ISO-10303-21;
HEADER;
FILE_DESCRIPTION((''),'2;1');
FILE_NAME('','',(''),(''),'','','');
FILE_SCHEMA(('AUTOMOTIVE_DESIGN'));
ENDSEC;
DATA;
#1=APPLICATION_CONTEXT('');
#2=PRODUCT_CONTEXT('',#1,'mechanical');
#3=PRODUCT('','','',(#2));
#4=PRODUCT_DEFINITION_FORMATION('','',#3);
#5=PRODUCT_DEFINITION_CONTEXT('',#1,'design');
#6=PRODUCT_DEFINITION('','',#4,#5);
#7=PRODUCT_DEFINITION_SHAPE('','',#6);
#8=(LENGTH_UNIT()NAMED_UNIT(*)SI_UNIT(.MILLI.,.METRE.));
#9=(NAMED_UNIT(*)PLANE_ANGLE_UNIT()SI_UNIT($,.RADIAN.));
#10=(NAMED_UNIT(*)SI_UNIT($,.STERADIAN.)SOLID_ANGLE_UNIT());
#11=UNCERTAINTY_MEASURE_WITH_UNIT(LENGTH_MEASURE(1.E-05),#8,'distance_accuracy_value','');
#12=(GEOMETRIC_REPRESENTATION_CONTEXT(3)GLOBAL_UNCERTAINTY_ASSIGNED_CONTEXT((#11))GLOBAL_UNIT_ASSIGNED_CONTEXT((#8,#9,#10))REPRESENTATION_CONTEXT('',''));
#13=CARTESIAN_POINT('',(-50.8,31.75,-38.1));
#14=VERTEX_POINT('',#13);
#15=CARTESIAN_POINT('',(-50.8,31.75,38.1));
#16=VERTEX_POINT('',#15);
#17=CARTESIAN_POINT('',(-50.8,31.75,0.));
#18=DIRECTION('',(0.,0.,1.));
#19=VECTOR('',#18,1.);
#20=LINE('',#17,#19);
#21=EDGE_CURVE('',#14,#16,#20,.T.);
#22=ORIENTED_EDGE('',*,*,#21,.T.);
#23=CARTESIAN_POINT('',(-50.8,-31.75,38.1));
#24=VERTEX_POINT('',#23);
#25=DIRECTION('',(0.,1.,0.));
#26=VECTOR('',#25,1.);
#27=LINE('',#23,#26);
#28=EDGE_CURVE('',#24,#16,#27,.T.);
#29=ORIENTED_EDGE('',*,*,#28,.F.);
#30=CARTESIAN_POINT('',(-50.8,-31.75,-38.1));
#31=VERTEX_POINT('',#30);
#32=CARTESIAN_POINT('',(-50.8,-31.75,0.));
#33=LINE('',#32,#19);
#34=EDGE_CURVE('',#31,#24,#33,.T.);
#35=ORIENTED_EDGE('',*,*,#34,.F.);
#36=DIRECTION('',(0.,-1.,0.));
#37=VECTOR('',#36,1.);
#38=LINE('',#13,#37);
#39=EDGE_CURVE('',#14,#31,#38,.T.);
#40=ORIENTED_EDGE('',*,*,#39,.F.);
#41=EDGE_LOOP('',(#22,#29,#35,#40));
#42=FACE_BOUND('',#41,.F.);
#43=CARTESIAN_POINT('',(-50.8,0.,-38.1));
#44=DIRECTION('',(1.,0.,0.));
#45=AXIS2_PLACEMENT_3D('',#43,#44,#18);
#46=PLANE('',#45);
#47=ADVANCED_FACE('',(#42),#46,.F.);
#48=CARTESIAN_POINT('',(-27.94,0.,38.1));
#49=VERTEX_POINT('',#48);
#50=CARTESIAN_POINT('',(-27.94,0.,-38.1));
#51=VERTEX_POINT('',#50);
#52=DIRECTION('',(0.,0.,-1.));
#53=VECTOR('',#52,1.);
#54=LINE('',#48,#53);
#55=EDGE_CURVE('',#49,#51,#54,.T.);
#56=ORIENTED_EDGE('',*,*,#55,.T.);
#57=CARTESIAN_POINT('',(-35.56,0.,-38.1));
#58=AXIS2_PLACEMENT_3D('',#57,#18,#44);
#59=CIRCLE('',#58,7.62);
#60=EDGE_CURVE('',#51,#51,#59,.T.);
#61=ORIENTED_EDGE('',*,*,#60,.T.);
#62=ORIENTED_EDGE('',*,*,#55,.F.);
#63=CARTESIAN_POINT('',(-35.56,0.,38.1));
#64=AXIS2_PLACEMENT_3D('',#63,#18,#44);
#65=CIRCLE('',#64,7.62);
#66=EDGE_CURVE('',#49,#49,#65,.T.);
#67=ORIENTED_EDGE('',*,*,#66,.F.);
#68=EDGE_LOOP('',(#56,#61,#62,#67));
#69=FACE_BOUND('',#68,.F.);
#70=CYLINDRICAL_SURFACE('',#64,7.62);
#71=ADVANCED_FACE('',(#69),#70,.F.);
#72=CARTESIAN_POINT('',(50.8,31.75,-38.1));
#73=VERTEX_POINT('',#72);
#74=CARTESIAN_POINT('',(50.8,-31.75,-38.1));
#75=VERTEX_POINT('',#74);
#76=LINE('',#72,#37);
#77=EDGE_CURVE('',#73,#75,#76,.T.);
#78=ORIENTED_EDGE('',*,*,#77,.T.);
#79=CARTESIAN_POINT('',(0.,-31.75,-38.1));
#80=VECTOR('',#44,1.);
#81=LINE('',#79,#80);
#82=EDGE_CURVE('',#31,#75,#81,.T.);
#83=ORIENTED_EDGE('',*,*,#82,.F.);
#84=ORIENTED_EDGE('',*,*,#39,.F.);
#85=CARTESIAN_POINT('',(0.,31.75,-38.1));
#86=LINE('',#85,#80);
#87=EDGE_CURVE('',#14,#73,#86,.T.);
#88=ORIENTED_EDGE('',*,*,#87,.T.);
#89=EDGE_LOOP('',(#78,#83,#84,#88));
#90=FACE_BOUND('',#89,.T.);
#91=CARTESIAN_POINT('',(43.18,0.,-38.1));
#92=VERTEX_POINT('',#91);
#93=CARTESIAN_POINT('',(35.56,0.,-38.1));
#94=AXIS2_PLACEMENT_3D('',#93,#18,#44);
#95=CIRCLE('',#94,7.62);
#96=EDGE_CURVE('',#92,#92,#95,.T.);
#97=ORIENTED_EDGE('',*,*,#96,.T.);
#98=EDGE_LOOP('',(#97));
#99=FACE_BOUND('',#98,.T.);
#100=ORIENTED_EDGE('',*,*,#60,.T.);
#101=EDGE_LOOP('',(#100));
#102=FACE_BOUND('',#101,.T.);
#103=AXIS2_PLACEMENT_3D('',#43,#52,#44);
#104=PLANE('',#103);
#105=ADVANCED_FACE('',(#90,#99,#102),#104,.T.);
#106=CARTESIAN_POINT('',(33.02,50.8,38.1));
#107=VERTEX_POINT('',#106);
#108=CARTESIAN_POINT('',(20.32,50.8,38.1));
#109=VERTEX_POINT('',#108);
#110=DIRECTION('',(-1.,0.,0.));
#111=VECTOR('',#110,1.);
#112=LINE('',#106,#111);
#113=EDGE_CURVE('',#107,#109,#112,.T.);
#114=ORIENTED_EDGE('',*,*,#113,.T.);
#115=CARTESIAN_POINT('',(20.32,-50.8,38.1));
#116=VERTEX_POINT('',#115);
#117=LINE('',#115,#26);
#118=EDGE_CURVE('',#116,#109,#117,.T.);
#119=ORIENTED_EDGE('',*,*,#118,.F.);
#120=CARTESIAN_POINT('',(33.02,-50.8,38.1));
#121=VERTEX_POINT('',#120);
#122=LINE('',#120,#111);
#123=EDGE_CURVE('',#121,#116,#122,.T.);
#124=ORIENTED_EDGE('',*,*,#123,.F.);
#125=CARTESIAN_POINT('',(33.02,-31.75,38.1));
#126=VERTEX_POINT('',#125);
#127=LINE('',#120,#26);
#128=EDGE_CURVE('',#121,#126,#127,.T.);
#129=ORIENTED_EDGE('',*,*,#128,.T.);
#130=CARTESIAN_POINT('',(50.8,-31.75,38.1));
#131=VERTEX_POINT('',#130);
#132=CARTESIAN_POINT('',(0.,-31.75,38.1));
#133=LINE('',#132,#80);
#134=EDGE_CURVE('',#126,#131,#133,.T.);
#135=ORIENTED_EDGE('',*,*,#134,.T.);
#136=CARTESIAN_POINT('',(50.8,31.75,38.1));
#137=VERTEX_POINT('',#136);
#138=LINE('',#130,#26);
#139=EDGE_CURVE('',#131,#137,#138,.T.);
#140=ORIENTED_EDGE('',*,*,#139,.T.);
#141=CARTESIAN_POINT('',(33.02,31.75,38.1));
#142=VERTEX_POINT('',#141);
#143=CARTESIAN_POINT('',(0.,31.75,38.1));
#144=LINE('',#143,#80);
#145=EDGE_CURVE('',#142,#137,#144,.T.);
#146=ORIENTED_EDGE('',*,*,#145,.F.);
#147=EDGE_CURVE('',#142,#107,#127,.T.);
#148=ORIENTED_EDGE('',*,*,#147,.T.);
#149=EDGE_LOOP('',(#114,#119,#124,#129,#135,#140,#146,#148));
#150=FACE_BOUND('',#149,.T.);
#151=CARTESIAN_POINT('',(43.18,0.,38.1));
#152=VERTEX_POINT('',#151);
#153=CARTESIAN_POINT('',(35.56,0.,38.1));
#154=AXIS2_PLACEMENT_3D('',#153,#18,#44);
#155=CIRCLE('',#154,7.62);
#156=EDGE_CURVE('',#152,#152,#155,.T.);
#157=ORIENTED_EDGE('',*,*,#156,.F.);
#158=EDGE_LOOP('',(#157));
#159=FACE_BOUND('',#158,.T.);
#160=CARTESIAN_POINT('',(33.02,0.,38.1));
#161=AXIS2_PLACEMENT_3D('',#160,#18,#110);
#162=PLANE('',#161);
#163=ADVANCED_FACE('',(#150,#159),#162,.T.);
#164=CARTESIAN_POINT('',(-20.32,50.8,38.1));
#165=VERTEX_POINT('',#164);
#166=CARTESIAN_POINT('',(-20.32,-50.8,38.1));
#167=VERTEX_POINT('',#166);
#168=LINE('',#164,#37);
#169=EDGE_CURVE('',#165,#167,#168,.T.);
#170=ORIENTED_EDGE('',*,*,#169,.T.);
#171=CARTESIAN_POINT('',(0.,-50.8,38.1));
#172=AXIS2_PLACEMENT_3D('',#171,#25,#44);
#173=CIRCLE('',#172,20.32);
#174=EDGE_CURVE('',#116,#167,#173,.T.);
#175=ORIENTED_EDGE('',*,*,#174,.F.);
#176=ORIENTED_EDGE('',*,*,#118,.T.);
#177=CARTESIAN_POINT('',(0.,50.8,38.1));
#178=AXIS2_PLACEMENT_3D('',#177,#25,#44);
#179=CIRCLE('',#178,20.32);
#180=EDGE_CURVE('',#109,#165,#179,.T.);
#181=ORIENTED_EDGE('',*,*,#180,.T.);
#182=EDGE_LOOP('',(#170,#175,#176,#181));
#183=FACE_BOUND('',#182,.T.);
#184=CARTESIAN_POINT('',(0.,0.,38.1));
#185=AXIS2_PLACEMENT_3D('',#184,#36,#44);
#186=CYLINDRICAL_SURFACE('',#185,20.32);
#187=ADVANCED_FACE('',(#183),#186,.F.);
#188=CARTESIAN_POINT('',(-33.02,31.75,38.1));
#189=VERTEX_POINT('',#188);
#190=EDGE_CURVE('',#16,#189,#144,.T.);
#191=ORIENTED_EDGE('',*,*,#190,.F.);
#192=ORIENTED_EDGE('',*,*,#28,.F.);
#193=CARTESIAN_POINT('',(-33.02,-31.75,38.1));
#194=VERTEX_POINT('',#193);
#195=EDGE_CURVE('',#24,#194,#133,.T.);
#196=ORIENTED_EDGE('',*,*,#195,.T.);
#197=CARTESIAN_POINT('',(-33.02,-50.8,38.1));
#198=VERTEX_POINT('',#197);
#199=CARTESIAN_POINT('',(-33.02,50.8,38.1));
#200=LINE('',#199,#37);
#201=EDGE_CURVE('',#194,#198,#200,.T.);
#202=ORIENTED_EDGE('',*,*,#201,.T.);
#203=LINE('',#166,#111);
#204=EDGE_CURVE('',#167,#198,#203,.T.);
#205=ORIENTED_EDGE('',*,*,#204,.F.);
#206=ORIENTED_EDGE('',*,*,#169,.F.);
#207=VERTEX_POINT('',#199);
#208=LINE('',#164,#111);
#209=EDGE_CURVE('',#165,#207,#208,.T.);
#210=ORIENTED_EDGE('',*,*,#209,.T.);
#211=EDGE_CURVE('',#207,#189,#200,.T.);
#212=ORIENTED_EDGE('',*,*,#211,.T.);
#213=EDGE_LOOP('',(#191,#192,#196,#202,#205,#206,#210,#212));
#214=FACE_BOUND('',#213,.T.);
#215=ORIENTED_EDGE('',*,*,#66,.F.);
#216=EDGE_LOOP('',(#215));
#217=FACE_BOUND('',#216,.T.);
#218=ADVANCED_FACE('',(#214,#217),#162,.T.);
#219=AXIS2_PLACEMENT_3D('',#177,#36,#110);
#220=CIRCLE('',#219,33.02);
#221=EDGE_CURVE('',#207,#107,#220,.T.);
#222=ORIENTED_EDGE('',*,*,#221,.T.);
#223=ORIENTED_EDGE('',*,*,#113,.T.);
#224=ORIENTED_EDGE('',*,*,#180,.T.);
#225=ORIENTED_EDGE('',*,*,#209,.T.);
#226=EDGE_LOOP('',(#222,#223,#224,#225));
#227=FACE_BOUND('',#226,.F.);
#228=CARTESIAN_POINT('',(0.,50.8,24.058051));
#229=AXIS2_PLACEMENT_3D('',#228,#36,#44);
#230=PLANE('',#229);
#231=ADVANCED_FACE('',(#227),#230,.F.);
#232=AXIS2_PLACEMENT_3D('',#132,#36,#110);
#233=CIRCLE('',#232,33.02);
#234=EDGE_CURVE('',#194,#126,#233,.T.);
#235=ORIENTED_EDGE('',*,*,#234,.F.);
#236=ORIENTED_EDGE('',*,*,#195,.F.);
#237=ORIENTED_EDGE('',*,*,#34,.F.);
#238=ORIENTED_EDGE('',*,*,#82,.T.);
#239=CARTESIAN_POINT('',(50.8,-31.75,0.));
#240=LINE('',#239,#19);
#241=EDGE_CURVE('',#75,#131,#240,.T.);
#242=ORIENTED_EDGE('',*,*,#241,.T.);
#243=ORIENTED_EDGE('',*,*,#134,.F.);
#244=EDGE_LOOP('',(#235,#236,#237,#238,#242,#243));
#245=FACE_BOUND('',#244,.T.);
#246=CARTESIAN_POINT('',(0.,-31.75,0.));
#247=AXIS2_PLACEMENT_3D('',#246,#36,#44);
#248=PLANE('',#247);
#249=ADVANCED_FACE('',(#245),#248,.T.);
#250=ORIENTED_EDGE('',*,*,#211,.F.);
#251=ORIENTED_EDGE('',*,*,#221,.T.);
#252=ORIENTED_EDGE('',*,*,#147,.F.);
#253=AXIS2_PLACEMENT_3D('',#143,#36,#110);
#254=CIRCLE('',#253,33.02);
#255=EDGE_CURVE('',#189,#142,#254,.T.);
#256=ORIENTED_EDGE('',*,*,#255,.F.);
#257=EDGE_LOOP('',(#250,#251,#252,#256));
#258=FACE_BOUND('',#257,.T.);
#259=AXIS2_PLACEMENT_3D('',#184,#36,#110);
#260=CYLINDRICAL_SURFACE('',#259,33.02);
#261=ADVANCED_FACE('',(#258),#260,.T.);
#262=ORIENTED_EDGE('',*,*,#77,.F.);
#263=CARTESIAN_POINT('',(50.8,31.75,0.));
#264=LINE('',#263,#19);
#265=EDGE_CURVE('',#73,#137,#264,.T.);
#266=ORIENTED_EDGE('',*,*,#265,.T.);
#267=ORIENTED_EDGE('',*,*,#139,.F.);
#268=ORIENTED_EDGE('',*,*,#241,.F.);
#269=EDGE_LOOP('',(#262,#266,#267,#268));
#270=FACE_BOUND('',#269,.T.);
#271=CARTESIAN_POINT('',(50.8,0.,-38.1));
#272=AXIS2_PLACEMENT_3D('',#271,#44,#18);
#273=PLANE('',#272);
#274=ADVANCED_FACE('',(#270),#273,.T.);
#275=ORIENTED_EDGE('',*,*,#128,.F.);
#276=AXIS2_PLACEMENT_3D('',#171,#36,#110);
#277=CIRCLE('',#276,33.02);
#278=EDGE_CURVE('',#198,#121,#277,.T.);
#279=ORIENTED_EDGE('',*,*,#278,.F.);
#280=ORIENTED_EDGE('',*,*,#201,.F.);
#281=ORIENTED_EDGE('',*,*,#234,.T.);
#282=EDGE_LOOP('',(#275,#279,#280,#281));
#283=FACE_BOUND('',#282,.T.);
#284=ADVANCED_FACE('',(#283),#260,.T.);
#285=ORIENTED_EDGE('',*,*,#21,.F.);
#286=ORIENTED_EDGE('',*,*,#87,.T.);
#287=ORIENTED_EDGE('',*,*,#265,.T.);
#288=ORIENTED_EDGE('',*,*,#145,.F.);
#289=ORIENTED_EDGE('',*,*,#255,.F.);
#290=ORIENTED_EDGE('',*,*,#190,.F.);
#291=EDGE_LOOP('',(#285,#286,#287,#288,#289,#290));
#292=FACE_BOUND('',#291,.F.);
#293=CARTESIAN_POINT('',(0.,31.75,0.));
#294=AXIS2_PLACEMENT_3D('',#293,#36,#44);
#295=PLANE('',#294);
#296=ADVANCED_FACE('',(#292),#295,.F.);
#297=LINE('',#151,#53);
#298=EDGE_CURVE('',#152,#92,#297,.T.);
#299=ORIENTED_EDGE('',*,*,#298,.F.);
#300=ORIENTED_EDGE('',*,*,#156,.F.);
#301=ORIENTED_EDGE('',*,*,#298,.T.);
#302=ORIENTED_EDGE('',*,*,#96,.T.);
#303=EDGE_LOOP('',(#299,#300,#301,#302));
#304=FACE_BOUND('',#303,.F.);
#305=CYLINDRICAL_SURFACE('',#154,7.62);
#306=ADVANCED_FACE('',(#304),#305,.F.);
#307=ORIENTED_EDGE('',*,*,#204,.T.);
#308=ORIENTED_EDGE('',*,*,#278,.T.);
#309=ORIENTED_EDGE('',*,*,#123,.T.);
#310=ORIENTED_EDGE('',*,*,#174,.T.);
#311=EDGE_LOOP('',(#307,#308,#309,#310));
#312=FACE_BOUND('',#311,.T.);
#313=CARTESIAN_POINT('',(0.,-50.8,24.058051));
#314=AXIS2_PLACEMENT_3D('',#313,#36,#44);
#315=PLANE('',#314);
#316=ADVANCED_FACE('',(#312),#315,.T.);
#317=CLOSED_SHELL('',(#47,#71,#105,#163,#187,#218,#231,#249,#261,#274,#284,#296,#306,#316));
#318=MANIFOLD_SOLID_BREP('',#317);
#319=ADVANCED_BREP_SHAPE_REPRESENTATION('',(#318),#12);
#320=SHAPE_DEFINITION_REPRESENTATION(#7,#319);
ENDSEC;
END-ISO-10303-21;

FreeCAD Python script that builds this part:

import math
import FreeCAD as App
import Part
import Sketcher
Q = App.Units.Quantity

doc = App.newDocument("Part")
body = doc.addObject("PartDesign::Body", "Body")

sketch1 = doc.addObject("Sketcher::SketchObject", "Sketch")
body.addObject(sketch1)
sketch1.AttachmentSupport = (doc.XZ_Plane, [""])
sketch1.MapMode = "FlatFace"
sketch1.addGeometry(Part.LineSegment(App.Vector(-51, 38, 0), App.Vector(-51, -38, 0)), False)
sketch1.addGeometry(Part.LineSegment(App.Vector(-51, -38, 0), App.Vector(51, -38, 0)), False)
sketch1.addGeometry(Part.LineSegment(App.Vector(51, -38, 0), App.Vector(51, 38, 0)), False)
sketch1.addGeometry(Part.LineSegment(App.Vector(51, 38, 0), App.Vector(-51, 38, 0)), False)
sketch1.addConstraint(Sketcher.Constraint("Coincident", 0, 2, 1, 1))
sketch1.addConstraint(Sketcher.Constraint("Coincident", 1, 2, 2, 1))
sketch1.addConstraint(Sketcher.Constraint("Coincident", 2, 2, 3, 1))
sketch1.addConstraint(Sketcher.Constraint("Coincident", 3, 2, 0, 1))
sketch1.addConstraint(Sketcher.Constraint("Vertical", 0))
sketch1.addConstraint(Sketcher.Constraint("Horizontal", 1))
sketch1.addConstraint(Sketcher.Constraint("Vertical", 2))
sketch1.addConstraint(Sketcher.Constraint("Horizontal", 3))
sketch1.addConstraint(Sketcher.Constraint("Symmetric", 0, 2, 2, 2, -1, 1))
sketch1.addConstraint(Sketcher.Constraint("DistanceX", 1, 1, 1, 2, Q("4 in")))
sketch1.addConstraint(Sketcher.Constraint("DistanceY", 0, 2, 0, 1, Q("3 in")))
pad1 = doc.addObject("PartDesign::Pad", "Pad")
body.addObject(pad1)
pad1.Profile = sketch1
pad1.Length = Q("2.5 in")
pad1.Midplane = True

sketch2 = doc.addObject("Sketcher::SketchObject", "Sketch001")
body.addObject(sketch2)
sketch2.AttachmentSupport = (doc.XZ_Plane, [""])
sketch2.MapMode = "FlatFace"
sketch2.addGeometry(Part.ArcOfCircle(Part.Circle(App.Vector(0, 38, 0), App.Vector(0, 0, 1), 20), math.radians(180), math.radians(360)), False)
sketch2.addGeometry(Part.LineSegment(App.Vector(-20, 38, 0), App.Vector(-33, 38, 0)), False)
sketch2.addGeometry(Part.ArcOfCircle(Part.Circle(App.Vector(0, 38, 0), App.Vector(0, 0, 1), 33), math.radians(180), math.radians(360)), False)
sketch2.addGeometry(Part.LineSegment(App.Vector(33, 38, 0), App.Vector(20, 38, 0)), False)
sketch2.addConstraint(Sketcher.Constraint("Coincident", 0, 1, 1, 1))
sketch2.addConstraint(Sketcher.Constraint("Coincident", 1, 2, 2, 1))
sketch2.addConstraint(Sketcher.Constraint("Coincident", 2, 2, 3, 1))
sketch2.addConstraint(Sketcher.Constraint("Coincident", 3, 2, 0, 2))
sketch2.addConstraint(Sketcher.Constraint("Horizontal", 1))
sketch2.addConstraint(Sketcher.Constraint("Horizontal", 3))
sketch2.addConstraint(Sketcher.Constraint("Coincident", 2, 3, 0, 3))
sketch2.addConstraint(Sketcher.Constraint("Symmetric", 1, 2, 2, 2, -2))
sketch2.addConstraint(Sketcher.Constraint("Horizontal", 2, 3, 0, 1))
sketch2.addConstraint(Sketcher.Constraint("Radius", 0, Q("0.8 in")))
sketch2.addConstraint(Sketcher.Constraint("Radius", 2, Q("1.3 in")))
sketch2.addConstraint(Sketcher.Constraint("DistanceY", -1, 1, 0, 3, Q("1.5 in")))
pad2 = doc.addObject("PartDesign::Pad", "Pad001")
body.addObject(pad2)
pad2.Profile = sketch2
pad2.Length = Q("4 in")
pad2.Midplane = True

sketch3 = doc.addObject("Sketcher::SketchObject", "Sketch002")
body.addObject(sketch3)
sketch3.AttachmentSupport = (doc.XZ_Plane, [""])
sketch3.MapMode = "FlatFace"
sketch3.AttachmentOffset = App.Placement(App.Vector(0, 0, 1.25 * 25.4), App.Rotation())
sketch3.addGeometry(Part.LineSegment(App.Vector(20, 38, 0), App.Vector(-20, 38, 0)), False)
sketch3.addGeometry(Part.ArcOfCircle(Part.Circle(App.Vector(0, 38, 0), App.Vector(0, 0, 1), 20), math.radians(180), math.radians(360)), False)
sketch3.addConstraint(Sketcher.Constraint("Coincident", 0, 1, 1, 2))
sketch3.addConstraint(Sketcher.Constraint("Coincident", 1, 1, 0, 2))
sketch3.addConstraint(Sketcher.Constraint("Horizontal", 0))
sketch3.addConstraint(Sketcher.Constraint("PointOnObject", 1, 3, -2))
sketch3.addConstraint(Sketcher.Constraint("Horizontal", 1, 3, 0, 1))
sketch3.addConstraint(Sketcher.Constraint("Radius", 1, Q("0.8 in")))
sketch3.addConstraint(Sketcher.Constraint("DistanceY", -1, 1, 1, 3, Q("1.5 in")))
pocket1 = doc.addObject("PartDesign::Pocket", "Pocket")
body.addObject(pocket1)
pocket1.Profile = sketch3
pocket1.Length = Q("3 in")

sketch4 = doc.addObject("Sketcher::SketchObject", "Sketch003")
body.addObject(sketch4)
sketch4.AttachmentSupport = (doc.XY_Plane, [""])
sketch4.MapMode = "FlatFace"
sketch4.AttachmentOffset = App.Placement(App.Vector(0, 0, 1.5 * 25.4), App.Rotation())
sketch4.addGeometry(Part.Circle(App.Vector(-36, 0, 0), App.Vector(0, 0, 1), 8), False)
sketch4.addGeometry(Part.Circle(App.Vector(36, 0, 0), App.Vector(0, 0, 1), 8), False)
sketch4.addConstraint(Sketcher.Constraint("Equal", 0, 1))
sketch4.addConstraint(Sketcher.Constraint("Symmetric", 0, 3, 1, 3, -1, 1))
sketch4.addConstraint(Sketcher.Constraint("PointOnObject", 0, 3, -1))
sketch4.addConstraint(Sketcher.Constraint("Diameter", 0, Q("0.6 in")))
sketch4.addConstraint(Sketcher.Constraint("DistanceX", 0, 3, -1, 1, Q("1.4 in")))
pocket2 = doc.addObject("PartDesign::Pocket", "Pocket001")
body.addObject(pocket2)
pocket2.Profile = sketch4
pocket2.Length = Q("3 in")

doc.recompute()
